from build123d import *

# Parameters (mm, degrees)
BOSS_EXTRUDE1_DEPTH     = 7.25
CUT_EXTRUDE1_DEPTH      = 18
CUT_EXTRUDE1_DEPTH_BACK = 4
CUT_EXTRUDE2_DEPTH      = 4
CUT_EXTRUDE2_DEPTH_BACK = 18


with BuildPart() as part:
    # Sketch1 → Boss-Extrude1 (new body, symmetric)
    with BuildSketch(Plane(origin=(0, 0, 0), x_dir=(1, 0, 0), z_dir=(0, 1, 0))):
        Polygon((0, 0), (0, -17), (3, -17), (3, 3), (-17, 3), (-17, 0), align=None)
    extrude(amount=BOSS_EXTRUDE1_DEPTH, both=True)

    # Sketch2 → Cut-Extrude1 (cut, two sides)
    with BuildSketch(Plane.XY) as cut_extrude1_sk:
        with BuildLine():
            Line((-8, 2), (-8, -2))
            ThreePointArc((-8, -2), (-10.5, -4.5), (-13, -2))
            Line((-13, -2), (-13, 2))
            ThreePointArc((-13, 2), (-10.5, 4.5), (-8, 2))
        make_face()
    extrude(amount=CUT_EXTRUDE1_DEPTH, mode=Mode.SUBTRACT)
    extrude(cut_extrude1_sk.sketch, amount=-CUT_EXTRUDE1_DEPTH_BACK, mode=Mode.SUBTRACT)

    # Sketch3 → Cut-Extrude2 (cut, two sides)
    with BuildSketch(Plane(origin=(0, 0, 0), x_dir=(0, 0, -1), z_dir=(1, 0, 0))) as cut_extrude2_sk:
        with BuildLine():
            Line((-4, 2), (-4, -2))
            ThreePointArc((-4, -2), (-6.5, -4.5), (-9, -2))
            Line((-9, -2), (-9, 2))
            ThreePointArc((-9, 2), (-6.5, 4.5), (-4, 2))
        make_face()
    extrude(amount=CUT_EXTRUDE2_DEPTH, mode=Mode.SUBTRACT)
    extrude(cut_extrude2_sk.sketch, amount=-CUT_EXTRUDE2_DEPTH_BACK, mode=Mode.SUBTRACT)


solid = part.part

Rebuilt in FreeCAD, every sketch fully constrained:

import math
import FreeCAD as App
import Part
import Sketcher
from FreeCAD import Vector
Q = App.Units.Quantity


def add_polygon(sketch, points):
    """Adds a closed chain of lines whose ends are joined by coincident constraints."""
    first, n = sketch.GeometryCount, len(points)
    for a, b in zip(points, points[1:] + points[:1]):
        sketch.addGeometry(Part.LineSegment(App.Vector(*a, 0), App.Vector(*b, 0)), False)
    for i in range(n):
        sketch.addConstraint(Sketcher.Constraint("Coincident", first + i, 2, first + (i + 1) % n, 1))

doc = App.newDocument("Part")
body = doc.addObject("PartDesign::Body", "Body")

# Sketch on XZ plane
sketch1 = doc.addObject("Sketcher::SketchObject", "Sketch")
body.addObject(sketch1)
sketch1.AttachmentSupport = (doc.XZ_Plane, [""])
sketch1.MapMode = "FlatFace"
add_polygon(sketch1, [(0, 0), (0, 17), (3, 17), (3, -3), (-17, -3), (-17, 0)])  # lines 0-5
sketch1.addConstraint(Sketcher.Constraint("Vertical", 0))
sketch1.addConstraint(Sketcher.Constraint("Horizontal", 1))
sketch1.addConstraint(Sketcher.Constraint("Vertical", 2))
sketch1.addConstraint(Sketcher.Constraint("Horizontal", 3))
sketch1.addConstraint(Sketcher.Constraint("Vertical", 4))
sketch1.addConstraint(Sketcher.Constraint("Horizontal", 5))
sketch1.addConstraint(Sketcher.Constraint("Coincident", 5, 2, -1, 1))
sketch1.addConstraint(Sketcher.Constraint("Equal", 5, 0))
sketch1.addConstraint(Sketcher.Constraint("Equal", 3, 2))
sketch1.addConstraint(Sketcher.Constraint("DistanceX", 1, 1, 1, 2, Q("3 mm")))
sketch1.addConstraint(Sketcher.Constraint("DistanceX", 3, 2, 3, 1, Q("20 mm")))
pad1 = doc.addObject("PartDesign::Pad", "Pad")
body.addObject(pad1)
pad1.Profile = sketch1
pad1.Length = 14.5
pad1.Midplane = True

# Sketch on XY plane
sketch2 = doc.addObject("Sketcher::SketchObject", "Sketch001")
body.addObject(sketch2)
sketch2.AttachmentSupport = (doc.XY_Plane, [""])
sketch2.MapMode = "FlatFace"
sketch2.addGeometry(Part.LineSegment(Vector(-8, -2, 0), Vector(-8, 2, 0)), False)
sketch2.addGeometry(Part.ArcOfCircle(Part.Circle(Vector(-10.5, 2, 0), Vector(0, 0, 1), 2.5), math.radians(0), math.radians(180)), False)
sketch2.addGeometry(Part.LineSegment(Vector(-13, 2, 0), Vector(-13, -2, 0)), False)
sketch2.addGeometry(Part.ArcOfCircle(Part.Circle(Vector(-10.5, -2, 0), Vector(0, 0, 1), 2.5), math.radians(180), math.radians(360)), False)
sketch2.addConstraint(Sketcher.Constraint("Tangent", 0, 2, 1, 1))
sketch2.addConstraint(Sketcher.Constraint("Tangent", 1, 2, 2, 1))
sketch2.addConstraint(Sketcher.Constraint("Tangent", 2, 2, 3, 1))
sketch2.addConstraint(Sketcher.Constraint("Tangent", 3, 2, 0, 1))
sketch2.addConstraint(Sketcher.Constraint("Vertical", 0))
sketch2.addConstraint(Sketcher.Constraint("Vertical", 2))
sketch2.addConstraint(Sketcher.Constraint("Radius", 1, Q("2.5 mm")))
sketch2.addConstraint(Sketcher.Constraint("DistanceY", 0, 1, 0, 2, Q("4 mm")))
sketch2.addConstraint(Sketcher.Constraint("DistanceY", -1, 1, 1, 3, Q("2 mm")))
sketch2.addConstraint(Sketcher.Constraint("DistanceX", 0, 2, -1, 1, Q("8 mm")))
pocket1 = doc.addObject("PartDesign::Pocket", "Pocket")
body.addObject(pocket1)
pocket1.Profile = sketch2
pocket1.Type = "ThroughAll"
pocket1.Midplane = True

# Sketch on YZ plane
sketch3 = doc.addObject("Sketcher::SketchObject", "Sketch002")
body.addObject(sketch3)
sketch3.AttachmentSupport = (doc.YZ_Plane, [""])
sketch3.MapMode = "FlatFace"
sketch3.addGeometry(Part.LineSegment(Vector(-2, 4, 0), Vector(2, 4, 0)), False)
sketch3.addGeometry(Part.ArcOfCircle(Part.Circle(Vector(2, 6.5, 0), Vector(0, 0, 1), 2.5), math.radians(-90), math.radians(90)), False)
sketch3.addGeometry(Part.LineSegment(Vector(2, 9, 0), Vector(-2, 9, 0)), False)
sketch3.addGeometry(Part.ArcOfCircle(Part.Circle(Vector(-2, 6.5, 0), Vector(0, 0, 1), 2.5), math.radians(90), math.radians(270)), False)
sketch3.addConstraint(Sketcher.Constraint("Tangent", 0, 2, 1, 1))
sketch3.addConstraint(Sketcher.Constraint("Tangent", 1, 2, 2, 1))
sketch3.addConstraint(Sketcher.Constraint("Tangent", 2, 2, 3, 1))
sketch3.addConstraint(Sketcher.Constraint("Tangent", 3, 2, 0, 1))
sketch3.addConstraint(Sketcher.Constraint("Horizontal", 0))
sketch3.addConstraint(Sketcher.Constraint("Horizontal", 2))
sketch3.addConstraint(Sketcher.Constraint("Radius", 1, Q("2.5 mm")))
sketch3.addConstraint(Sketcher.Constraint("DistanceX", 0, 1, 0, 2, Q("4 mm")))
sketch3.addConstraint(Sketcher.Constraint("DistanceX", -1, 1, 1, 3, Q("2 mm")))
sketch3.addConstraint(Sketcher.Constraint("DistanceY", -1, 1, 0, 2, Q("4 mm")))
pocket2 = doc.addObject("PartDesign::Pocket", "Pocket001")
body.addObject(pocket2)
pocket2.Profile = sketch3
pocket2.Type = "ThroughAll"
pocket2.Midplane = True

doc.recompute()
